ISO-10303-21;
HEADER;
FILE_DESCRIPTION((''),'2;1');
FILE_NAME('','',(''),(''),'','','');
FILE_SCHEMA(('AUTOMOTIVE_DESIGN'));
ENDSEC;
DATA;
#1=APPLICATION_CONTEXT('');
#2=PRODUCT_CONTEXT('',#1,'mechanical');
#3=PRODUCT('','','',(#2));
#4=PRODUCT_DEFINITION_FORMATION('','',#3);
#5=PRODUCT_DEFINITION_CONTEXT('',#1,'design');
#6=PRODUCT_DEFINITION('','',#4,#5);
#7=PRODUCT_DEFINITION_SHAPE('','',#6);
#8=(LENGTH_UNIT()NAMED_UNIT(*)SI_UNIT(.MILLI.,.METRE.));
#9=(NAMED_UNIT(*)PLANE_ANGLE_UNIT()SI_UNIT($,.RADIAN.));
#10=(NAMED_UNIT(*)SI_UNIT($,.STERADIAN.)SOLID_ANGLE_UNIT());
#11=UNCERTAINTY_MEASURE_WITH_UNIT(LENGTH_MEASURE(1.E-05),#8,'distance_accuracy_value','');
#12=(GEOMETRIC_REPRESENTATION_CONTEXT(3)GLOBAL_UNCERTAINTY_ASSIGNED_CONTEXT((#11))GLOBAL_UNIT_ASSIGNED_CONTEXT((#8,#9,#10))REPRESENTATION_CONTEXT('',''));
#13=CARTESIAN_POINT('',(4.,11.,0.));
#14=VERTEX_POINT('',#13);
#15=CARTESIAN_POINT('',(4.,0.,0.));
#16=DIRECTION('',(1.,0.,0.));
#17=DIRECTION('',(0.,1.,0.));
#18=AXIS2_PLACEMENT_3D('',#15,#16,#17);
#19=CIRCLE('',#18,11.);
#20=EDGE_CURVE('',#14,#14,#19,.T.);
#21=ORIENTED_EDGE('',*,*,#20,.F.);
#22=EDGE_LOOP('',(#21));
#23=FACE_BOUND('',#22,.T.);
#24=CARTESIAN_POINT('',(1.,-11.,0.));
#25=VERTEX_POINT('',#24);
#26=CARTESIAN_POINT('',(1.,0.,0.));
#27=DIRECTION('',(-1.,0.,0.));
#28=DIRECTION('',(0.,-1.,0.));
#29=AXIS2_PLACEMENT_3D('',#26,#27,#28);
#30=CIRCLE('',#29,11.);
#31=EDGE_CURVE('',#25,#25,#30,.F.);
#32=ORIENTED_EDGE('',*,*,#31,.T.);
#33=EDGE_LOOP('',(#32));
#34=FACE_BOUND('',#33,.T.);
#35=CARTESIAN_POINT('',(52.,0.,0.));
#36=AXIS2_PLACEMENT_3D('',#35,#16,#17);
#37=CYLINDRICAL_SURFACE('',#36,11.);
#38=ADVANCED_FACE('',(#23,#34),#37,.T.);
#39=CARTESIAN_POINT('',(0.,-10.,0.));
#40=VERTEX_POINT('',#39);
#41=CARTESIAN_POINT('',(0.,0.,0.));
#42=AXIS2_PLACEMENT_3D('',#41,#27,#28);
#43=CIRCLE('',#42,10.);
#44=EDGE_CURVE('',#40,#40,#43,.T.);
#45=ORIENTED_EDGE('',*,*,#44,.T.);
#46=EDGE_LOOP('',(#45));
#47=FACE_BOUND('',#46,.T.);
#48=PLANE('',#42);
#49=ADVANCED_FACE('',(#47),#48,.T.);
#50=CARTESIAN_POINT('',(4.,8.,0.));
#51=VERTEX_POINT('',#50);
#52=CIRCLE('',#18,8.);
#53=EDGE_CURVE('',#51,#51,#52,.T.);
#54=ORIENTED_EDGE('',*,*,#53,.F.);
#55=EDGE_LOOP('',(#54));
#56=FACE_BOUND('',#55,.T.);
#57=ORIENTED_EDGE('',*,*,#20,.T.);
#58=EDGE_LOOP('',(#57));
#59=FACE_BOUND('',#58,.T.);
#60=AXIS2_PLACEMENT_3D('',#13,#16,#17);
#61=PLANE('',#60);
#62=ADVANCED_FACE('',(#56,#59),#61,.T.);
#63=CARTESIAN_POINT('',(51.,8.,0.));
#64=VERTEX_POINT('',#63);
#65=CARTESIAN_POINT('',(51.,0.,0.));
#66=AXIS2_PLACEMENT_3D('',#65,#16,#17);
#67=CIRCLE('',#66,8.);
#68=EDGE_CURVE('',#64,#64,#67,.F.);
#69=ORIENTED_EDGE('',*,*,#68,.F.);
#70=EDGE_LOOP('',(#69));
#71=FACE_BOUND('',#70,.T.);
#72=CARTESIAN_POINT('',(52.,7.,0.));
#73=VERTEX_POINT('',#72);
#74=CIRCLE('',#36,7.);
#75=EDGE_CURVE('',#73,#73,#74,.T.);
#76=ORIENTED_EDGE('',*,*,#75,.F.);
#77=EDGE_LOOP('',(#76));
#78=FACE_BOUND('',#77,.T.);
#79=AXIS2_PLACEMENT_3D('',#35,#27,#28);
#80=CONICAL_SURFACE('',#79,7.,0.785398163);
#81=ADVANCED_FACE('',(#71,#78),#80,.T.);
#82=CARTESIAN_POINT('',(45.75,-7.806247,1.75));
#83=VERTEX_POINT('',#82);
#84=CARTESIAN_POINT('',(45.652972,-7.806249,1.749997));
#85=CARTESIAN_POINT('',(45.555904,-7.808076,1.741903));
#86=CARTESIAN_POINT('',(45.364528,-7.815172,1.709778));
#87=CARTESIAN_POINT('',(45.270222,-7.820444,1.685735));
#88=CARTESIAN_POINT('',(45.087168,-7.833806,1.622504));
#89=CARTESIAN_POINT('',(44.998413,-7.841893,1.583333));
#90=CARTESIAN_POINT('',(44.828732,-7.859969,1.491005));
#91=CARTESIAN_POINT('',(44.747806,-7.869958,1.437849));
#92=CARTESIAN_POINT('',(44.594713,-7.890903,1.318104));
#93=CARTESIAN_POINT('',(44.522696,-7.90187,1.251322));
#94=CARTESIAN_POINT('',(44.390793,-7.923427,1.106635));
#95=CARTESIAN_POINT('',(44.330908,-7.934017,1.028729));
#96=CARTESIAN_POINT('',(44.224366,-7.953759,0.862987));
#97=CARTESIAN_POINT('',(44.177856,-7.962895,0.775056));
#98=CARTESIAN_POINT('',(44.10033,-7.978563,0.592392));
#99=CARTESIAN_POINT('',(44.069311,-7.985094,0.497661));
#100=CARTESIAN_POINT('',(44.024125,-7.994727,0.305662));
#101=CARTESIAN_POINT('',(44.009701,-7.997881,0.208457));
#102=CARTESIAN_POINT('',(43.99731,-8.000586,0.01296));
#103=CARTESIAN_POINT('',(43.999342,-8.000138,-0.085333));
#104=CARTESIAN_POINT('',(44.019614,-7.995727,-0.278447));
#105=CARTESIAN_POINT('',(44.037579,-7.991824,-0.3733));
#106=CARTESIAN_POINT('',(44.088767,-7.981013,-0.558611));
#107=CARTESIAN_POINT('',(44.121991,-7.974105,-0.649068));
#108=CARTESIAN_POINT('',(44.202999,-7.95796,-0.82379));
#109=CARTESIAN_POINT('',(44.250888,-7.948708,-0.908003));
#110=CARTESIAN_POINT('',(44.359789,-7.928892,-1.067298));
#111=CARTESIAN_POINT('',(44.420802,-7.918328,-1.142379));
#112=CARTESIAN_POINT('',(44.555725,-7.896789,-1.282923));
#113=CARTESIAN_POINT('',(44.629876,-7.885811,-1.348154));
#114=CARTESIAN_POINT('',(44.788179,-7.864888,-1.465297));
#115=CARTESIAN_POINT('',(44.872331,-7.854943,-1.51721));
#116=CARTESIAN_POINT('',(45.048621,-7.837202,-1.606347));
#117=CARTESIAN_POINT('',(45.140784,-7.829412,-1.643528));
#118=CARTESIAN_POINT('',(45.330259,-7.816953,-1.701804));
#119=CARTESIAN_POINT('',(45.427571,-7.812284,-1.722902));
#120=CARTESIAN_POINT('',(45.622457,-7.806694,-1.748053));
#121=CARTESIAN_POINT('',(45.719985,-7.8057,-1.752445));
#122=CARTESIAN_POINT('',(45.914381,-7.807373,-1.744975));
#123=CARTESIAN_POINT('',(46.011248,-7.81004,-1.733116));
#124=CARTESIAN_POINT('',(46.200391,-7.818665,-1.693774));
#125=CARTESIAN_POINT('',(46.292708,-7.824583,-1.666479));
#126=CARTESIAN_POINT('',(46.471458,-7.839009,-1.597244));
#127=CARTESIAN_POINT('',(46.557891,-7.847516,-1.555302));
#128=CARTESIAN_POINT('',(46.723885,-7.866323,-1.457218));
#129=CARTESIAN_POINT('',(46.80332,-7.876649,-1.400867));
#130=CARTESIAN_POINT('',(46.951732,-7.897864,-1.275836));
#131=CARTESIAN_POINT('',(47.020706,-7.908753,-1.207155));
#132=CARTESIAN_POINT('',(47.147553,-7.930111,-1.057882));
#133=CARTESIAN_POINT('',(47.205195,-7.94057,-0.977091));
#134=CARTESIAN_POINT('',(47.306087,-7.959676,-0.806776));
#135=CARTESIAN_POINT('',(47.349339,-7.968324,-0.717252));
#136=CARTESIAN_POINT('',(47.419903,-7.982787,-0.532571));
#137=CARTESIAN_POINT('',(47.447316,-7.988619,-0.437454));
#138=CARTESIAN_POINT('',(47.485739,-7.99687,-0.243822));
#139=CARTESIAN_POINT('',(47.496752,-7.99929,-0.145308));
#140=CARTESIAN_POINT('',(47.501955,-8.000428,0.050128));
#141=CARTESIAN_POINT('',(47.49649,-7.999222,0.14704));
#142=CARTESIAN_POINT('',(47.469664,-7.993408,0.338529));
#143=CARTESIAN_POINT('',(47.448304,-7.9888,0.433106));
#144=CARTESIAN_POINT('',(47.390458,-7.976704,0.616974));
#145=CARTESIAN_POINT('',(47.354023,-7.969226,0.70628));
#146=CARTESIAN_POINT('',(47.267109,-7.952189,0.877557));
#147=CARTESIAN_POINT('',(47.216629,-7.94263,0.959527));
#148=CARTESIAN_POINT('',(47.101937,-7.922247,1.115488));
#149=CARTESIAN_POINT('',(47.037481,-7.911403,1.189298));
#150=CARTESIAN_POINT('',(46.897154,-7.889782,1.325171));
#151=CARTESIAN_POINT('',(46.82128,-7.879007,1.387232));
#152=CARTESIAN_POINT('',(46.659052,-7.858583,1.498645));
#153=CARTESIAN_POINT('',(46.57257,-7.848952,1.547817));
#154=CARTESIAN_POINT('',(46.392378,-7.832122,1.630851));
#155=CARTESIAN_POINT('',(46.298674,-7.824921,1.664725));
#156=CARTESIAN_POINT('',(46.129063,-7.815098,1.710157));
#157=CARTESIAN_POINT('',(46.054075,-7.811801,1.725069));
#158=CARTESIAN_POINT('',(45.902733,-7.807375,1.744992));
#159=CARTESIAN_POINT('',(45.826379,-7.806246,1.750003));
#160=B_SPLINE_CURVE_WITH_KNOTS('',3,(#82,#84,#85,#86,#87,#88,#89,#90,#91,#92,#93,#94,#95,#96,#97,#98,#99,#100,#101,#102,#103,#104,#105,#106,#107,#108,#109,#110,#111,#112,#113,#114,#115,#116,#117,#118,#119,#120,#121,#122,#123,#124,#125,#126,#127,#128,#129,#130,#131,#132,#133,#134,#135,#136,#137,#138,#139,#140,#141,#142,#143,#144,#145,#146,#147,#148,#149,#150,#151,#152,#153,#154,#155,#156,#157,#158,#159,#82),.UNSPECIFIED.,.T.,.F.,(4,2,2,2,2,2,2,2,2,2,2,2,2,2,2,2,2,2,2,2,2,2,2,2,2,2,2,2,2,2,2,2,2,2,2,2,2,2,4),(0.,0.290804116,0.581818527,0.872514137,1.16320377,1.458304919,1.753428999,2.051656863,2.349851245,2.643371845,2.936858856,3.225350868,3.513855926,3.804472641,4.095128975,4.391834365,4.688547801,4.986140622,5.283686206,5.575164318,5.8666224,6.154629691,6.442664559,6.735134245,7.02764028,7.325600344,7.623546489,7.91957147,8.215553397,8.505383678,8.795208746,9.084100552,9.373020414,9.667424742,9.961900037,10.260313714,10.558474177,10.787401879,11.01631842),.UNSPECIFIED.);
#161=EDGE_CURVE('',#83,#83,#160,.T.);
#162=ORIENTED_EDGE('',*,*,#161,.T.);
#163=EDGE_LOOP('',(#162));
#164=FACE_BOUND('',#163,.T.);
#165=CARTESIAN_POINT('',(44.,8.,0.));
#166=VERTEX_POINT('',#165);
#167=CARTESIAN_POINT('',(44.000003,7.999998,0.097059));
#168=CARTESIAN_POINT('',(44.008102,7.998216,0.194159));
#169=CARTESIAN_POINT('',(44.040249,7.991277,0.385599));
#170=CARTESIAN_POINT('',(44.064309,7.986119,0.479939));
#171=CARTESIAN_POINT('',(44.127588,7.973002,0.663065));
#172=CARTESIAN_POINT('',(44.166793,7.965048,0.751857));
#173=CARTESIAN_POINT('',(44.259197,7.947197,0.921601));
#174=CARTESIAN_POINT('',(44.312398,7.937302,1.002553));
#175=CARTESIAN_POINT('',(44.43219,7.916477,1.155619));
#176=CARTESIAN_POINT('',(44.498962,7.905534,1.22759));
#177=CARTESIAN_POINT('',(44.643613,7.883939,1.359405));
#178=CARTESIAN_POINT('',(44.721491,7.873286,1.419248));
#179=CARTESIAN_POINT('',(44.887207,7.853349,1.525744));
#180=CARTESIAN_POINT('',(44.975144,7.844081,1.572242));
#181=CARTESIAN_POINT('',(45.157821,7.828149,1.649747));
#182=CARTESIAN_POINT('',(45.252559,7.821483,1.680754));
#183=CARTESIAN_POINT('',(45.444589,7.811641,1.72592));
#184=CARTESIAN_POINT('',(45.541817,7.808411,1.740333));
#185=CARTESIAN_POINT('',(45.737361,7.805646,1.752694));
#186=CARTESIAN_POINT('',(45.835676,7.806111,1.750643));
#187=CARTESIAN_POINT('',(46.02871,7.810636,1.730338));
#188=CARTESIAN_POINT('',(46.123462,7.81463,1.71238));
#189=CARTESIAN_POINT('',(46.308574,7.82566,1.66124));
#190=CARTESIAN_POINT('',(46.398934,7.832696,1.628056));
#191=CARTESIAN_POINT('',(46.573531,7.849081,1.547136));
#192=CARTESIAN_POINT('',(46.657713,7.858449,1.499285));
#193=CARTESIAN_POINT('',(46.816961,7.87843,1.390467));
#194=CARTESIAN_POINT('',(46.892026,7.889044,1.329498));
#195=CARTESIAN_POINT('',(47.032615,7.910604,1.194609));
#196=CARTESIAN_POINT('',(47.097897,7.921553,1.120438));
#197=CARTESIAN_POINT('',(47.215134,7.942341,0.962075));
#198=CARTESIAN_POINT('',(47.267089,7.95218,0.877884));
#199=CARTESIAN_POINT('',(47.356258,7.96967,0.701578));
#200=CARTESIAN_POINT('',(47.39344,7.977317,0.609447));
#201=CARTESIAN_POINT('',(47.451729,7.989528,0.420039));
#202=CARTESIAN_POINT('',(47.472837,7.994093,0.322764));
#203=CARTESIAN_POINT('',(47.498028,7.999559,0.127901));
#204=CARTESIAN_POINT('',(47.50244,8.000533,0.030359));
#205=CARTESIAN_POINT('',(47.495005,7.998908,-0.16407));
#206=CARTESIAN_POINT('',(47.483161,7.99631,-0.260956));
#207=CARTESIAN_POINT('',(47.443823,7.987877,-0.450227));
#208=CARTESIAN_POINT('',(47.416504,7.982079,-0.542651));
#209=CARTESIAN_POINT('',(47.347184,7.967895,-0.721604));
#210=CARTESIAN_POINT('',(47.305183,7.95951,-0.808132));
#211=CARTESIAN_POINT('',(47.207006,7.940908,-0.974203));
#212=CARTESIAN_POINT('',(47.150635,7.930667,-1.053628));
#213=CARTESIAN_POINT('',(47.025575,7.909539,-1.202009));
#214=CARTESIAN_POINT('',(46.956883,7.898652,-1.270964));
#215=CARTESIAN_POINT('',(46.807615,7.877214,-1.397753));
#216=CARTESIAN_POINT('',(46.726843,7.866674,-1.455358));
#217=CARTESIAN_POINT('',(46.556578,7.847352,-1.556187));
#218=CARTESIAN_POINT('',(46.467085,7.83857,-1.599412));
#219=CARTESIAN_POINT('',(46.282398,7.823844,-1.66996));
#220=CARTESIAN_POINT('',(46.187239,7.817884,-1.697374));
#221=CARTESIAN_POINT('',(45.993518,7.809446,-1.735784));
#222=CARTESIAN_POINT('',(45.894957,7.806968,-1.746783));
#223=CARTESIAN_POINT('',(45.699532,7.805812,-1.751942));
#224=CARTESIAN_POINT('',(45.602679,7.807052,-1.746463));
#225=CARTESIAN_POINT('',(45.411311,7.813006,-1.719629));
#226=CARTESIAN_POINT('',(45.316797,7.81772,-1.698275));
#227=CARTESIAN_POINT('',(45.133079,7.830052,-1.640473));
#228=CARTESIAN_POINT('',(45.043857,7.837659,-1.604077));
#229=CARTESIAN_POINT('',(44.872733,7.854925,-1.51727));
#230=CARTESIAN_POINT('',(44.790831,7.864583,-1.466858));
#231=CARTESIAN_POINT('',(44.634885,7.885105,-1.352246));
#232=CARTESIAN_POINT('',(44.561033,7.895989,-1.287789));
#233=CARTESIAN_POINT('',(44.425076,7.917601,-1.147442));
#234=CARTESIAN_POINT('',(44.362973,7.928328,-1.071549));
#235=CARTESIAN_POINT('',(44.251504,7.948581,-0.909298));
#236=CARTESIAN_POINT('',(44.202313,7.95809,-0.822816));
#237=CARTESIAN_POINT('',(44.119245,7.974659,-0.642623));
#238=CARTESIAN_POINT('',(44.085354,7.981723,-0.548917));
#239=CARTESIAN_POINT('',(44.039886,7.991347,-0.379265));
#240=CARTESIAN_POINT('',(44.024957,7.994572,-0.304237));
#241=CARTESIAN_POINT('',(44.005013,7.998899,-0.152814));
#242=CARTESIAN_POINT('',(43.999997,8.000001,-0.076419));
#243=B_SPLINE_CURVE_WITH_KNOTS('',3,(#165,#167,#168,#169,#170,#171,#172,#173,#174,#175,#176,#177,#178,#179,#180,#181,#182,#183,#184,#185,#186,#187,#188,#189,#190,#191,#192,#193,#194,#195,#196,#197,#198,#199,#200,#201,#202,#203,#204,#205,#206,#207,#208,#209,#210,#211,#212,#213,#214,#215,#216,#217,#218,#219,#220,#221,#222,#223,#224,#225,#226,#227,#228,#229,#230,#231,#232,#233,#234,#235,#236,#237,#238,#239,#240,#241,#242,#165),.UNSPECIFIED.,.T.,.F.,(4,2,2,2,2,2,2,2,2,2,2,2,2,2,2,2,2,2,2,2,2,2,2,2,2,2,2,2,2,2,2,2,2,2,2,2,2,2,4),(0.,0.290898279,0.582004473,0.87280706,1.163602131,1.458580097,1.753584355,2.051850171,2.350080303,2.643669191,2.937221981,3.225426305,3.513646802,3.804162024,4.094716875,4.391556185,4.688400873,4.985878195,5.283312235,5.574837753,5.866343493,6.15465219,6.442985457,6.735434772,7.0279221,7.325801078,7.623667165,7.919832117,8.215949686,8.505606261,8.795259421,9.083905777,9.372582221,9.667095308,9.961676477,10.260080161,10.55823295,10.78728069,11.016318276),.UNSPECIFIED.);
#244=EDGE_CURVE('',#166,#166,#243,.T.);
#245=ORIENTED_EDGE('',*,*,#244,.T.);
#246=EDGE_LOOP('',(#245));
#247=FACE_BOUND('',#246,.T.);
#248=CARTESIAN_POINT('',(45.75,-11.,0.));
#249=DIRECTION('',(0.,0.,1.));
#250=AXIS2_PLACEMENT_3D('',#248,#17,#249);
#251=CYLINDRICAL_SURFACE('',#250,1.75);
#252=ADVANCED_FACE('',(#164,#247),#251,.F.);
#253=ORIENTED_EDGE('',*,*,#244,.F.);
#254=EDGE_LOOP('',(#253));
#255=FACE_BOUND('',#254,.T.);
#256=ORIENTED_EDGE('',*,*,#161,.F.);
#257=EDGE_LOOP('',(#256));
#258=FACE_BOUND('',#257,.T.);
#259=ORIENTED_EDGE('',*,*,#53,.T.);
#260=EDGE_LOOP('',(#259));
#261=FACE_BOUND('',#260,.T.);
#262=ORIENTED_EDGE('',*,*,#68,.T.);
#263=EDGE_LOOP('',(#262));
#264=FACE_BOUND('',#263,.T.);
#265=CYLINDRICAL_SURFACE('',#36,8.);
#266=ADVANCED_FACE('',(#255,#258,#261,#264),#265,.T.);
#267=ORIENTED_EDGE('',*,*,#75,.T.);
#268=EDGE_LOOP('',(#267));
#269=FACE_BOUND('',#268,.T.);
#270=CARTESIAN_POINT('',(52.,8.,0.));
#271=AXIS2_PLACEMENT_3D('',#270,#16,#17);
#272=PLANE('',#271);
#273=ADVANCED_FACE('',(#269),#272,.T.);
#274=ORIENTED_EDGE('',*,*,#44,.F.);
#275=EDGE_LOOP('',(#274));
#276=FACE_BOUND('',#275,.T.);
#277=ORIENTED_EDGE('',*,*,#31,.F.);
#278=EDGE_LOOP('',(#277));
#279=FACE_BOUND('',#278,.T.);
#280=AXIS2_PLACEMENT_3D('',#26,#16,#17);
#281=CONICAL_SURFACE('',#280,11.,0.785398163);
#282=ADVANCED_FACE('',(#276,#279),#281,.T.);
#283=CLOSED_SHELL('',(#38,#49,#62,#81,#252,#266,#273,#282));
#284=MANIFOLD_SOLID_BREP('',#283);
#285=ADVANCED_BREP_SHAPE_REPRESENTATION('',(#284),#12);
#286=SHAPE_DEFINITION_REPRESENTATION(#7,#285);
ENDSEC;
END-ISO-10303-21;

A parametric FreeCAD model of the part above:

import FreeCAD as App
import Part
import Sketcher

V = App.Vector


def edges_at(feature, points):
    """Names of the edges that pass closest to the given points."""
    edges = feature.Shape.Edges
    near = lambda p: min(range(len(edges)), key=lambda i: edges[i].distToShape(Part.Vertex(*p))[0])
    return sorted({f"Edge{near(p) + 1}" for p in points})

doc = App.newDocument("Part")
body = doc.addObject("PartDesign::Body", "Body")

# Sketch on XY plane
sketch1 = doc.addObject("Sketcher::SketchObject", "Sketch")
body.addObject(sketch1)
sketch1.AttachmentSupport = (doc.XY_Plane, [""])
sketch1.MapMode = "FlatFace"
sketch1.addGeometry([
    Part.LineSegment(V(0, 11, 0), V(0, 0, 0)),  # 0
    Part.LineSegment(V(0, 0, 0), V(52, 0, 0)),  # 1
    Part.LineSegment(V(52, 0, 0), V(52, 8, 0)),  # 2
    Part.LineSegment(V(52, 8, 0), V(4, 8, 0)),  # 3
    Part.LineSegment(V(4, 8, 0), V(4, 11, 0)),  # 4
    Part.LineSegment(V(4, 11, 0), V(0, 11, 0)),  # 5
], False)
sketch1.addConstraint([
    Sketcher.Constraint("Coincident", 0, 2, 1, 1),
    Sketcher.Constraint("Coincident", 1, 2, 2, 1),
    Sketcher.Constraint("Coincident", 2, 2, 3, 1),
    Sketcher.Constraint("Coincident", 3, 2, 4, 1),
    Sketcher.Constraint("Coincident", 4, 2, 5, 1),
    Sketcher.Constraint("Coincident", 5, 2, 0, 1),
    Sketcher.Constraint("Vertical", 0),
    Sketcher.Constraint("Horizontal", 1),
    Sketcher.Constraint("Vertical", 2),
    Sketcher.Constraint("Horizontal", 3),
    Sketcher.Constraint("Vertical", 4),
    Sketcher.Constraint("Horizontal", 5),
    Sketcher.Constraint("Coincident", 0, 2, -1, 1),
    Sketcher.Constraint("DistanceX", 1, 1, 1, 2, 52.0),
    Sketcher.Constraint("DistanceX", 3, 2, 3, 1, 48.0),
    Sketcher.Constraint("DistanceY", 0, 2, 0, 1, 11.0),
    Sketcher.Constraint("DistanceY", 2, 1, 2, 2, 8.0),
])
revolution = doc.addObject("PartDesign::Revolution", "Revolution")
body.addObject(revolution)
revolution.Profile = sketch1
revolution.ReferenceAxis = (sketch1, ["H_Axis"])
revolution.Angle = 360

# Sketch on XZ plane
sketch2 = doc.addObject("Sketcher::SketchObject", "Sketch001")
body.addObject(sketch2)
sketch2.AttachmentSupport = (doc.XZ_Plane, [""])
sketch2.MapMode = "FlatFace"
sketch2.addGeometry(Part.Circle(V(45.8, 0, 0), V(0, 0, 1), 1.8), False)
sketch2.addConstraint([
    Sketcher.Constraint("PointOnObject", 0, 3, -1),
    Sketcher.Constraint("Diameter", 0, 3.5),
    Sketcher.Constraint("DistanceX", -1, 1, 0, 3, 45.75),
])
pocket1 = doc.addObject("PartDesign::Pocket", "Pocket")
body.addObject(pocket1)
pocket1.Profile = sketch2
pocket1.Type = "ThroughAll"
pocket1.Midplane = True
doc.recompute()

chamfer = doc.addObject("PartDesign::Chamfer", "Chamfer")
body.addObject(chamfer)
chamfer.Base = (pocket1, edges_at(pocket1, [(52, -8, 0), (0, -11, 0)]))
chamfer.Size = 1

doc.recompute()
